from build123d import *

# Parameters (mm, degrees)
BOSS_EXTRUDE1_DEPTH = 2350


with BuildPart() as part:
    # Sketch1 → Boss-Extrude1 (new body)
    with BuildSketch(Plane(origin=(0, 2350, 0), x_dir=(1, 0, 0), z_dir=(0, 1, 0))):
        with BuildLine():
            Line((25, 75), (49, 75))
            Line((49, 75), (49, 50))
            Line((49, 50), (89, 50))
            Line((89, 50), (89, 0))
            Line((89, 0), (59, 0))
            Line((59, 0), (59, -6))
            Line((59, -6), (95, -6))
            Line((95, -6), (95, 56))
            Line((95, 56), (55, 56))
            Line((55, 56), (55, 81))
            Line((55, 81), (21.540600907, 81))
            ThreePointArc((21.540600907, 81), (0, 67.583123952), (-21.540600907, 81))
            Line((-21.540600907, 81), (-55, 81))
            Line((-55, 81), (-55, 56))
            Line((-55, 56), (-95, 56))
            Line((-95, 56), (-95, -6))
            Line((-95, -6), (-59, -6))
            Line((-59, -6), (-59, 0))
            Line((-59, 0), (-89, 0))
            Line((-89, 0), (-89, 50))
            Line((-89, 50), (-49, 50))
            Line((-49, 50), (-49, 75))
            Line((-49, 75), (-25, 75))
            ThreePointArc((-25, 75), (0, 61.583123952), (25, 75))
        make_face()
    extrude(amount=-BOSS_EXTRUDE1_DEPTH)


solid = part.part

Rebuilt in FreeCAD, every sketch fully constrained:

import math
import FreeCAD as App
import Part
import Sketcher

doc = App.newDocument("Part")
params = doc.addObject("Spreadsheet::Sheet", "Params")
for row, (alias, value) in enumerate([
    ("sketch1_radius", "24 mm"),
    ("sketch1_radius2", "30 mm"),
    ("sketch1_width", "24 mm"),
    ("sketch1_width2", "40 mm"),
    ("sketch1_width3", "30 mm"),
    ("pad1_length", "2350 mm"),
], start=1):
    params.set(f"A{row}", alias)
    params.set(f"B{row}", "=" + value)
    params.setAlias(f"B{row}", alias)

body = doc.addObject("PartDesign::Body", "Body")

# Sketch on XZ plane
sketch1 = body.newObject("Sketcher::SketchObject", "Sketch")
sketch1.AttachmentSupport = (doc.getObject("XZ_Plane"), [""])
sketch1.MapMode = "FlatFace"
sketch1.AttachmentOffset = App.Placement(App.Vector(0, 0, -2350), App.Rotation())
sketch1.addGeometry([
    Part.LineSegment(App.Vector(25, -75, 0), App.Vector(49, -75, 0)),  # 0
    Part.LineSegment(App.Vector(49, -75, 0), App.Vector(49, -50, 0)),  # 1
    Part.LineSegment(App.Vector(49, -50, 0), App.Vector(89, -50, 0)),  # 2
    Part.LineSegment(App.Vector(89, -50, 0), App.Vector(89, 0, 0)),  # 3
    Part.LineSegment(App.Vector(89, 0, 0), App.Vector(59, 0, 0)),  # 4
    Part.LineSegment(App.Vector(59, 0, 0), App.Vector(59, 6, 0)),  # 5
    Part.LineSegment(App.Vector(59, 6, 0), App.Vector(95, 6, 0)),  # 6
    Part.LineSegment(App.Vector(95, 6, 0), App.Vector(95, -56, 0)),  # 7
    Part.LineSegment(App.Vector(95, -56, 0), App.Vector(55, -56, 0)),  # 8
    Part.LineSegment(App.Vector(55, -56, 0), App.Vector(55, -81, 0)),  # 9
    Part.LineSegment(App.Vector(55, -81, 0), App.Vector(21.540601, -81, 0)),  # 10
    Part.ArcOfCircle(Part.Circle(App.Vector(0, -91.583124, 0), App.Vector(0, 0, 1), 24), math.radians(26.165372), math.radians(153.834628)),  # 11
    Part.LineSegment(App.Vector(-21.540601, -81, 0), App.Vector(-55, -81, 0)),  # 12
    Part.LineSegment(App.Vector(-55, -81, 0), App.Vector(-55, -56, 0)),  # 13
    Part.LineSegment(App.Vector(-55, -56, 0), App.Vector(-95, -56, 0)),  # 14
    Part.LineSegment(App.Vector(-95, -56, 0), App.Vector(-95, 6, 0)),  # 15
    Part.LineSegment(App.Vector(-95, 6, 0), App.Vector(-59, 6, 0)),  # 16
    Part.LineSegment(App.Vector(-59, 6, 0), App.Vector(-59, 0, 0)),  # 17
    Part.LineSegment(App.Vector(-59, 0, 0), App.Vector(-89, 0, 0)),  # 18
    Part.LineSegment(App.Vector(-89, 0, 0), App.Vector(-89, -50, 0)),  # 19
    Part.LineSegment(App.Vector(-89, -50, 0), App.Vector(-49, -50, 0)),  # 20
    Part.LineSegment(App.Vector(-49, -50, 0), App.Vector(-49, -75, 0)),  # 21
    Part.LineSegment(App.Vector(-49, -75, 0), App.Vector(-25, -75, 0)),  # 22
    Part.ArcOfCircle(Part.Circle(App.Vector(0, -91.583124, 0), App.Vector(0, 0, 1), 30), math.radians(33.55731), math.radians(146.44269)),  # 23
], False)
sketch1.addConstraint([
    Sketcher.Constraint("Coincident", 0, 2, 1, 1),
    Sketcher.Constraint("Coincident", 1, 2, 2, 1),
    Sketcher.Constraint("Coincident", 2, 2, 3, 1),
    Sketcher.Constraint("Coincident", 3, 2, 4, 1),
    Sketcher.Constraint("Coincident", 4, 2, 5, 1),
    Sketcher.Constraint("Coincident", 5, 2, 6, 1),
    Sketcher.Constraint("Coincident", 6, 2, 7, 1),
    Sketcher.Constraint("Coincident", 7, 2, 8, 1),
    Sketcher.Constraint("Coincident", 8, 2, 9, 1),
    Sketcher.Constraint("Coincident", 9, 2, 10, 1),
    Sketcher.Constraint("Coincident", 10, 2, 11, 1),
    Sketcher.Constraint("Coincident", 11, 2, 12, 1),
    Sketcher.Constraint("Coincident", 12, 2, 13, 1),
    Sketcher.Constraint("Coincident", 13, 2, 14, 1),
    Sketcher.Constraint("Coincident", 14, 2, 15, 1),
    Sketcher.Constraint("Coincident", 15, 2, 16, 1),
    Sketcher.Constraint("Coincident", 16, 2, 17, 1),
    Sketcher.Constraint("Coincident", 17, 2, 18, 1),
    Sketcher.Constraint("Coincident", 18, 2, 19, 1),
    Sketcher.Constraint("Coincident", 19, 2, 20, 1),
    Sketcher.Constraint("Coincident", 20, 2, 21, 1),
    Sketcher.Constraint("Coincident", 21, 2, 22, 1),
    Sketcher.Constraint("Coincident", 22, 2, 23, 2),
    Sketcher.Constraint("Coincident", 23, 1, 0, 1),
    Sketcher.Constraint("Horizontal", 0),
    Sketcher.Constraint("Vertical", 1),
    Sketcher.Constraint("Horizontal", 2),
    Sketcher.Constraint("Vertical", 3),
    Sketcher.Constraint("Horizontal", 4),
    Sketcher.Constraint("Vertical", 5),
    Sketcher.Constraint("Horizontal", 6),
    Sketcher.Constraint("Vertical", 7),
    Sketcher.Constraint("Horizontal", 8),
    Sketcher.Constraint("Vertical", 9),
    Sketcher.Constraint("Horizontal", 10),
    Sketcher.Constraint("Horizontal", 12),
    Sketcher.Constraint("Vertical", 13),
    Sketcher.Constraint("Horizontal", 14),
    Sketcher.Constraint("Vertical", 15),
    Sketcher.Constraint("Horizontal", 16),
    Sketcher.Constraint("Vertical", 17),
    Sketcher.Constraint("Horizontal", 18),
    Sketcher.Constraint("Vertical", 19),
    Sketcher.Constraint("Horizontal", 20),
    Sketcher.Constraint("Vertical", 21),
    Sketcher.Constraint("Horizontal", 22),
    Sketcher.Constraint("Coincident", 23, 3, 11, 3),
    Sketcher.Constraint("Symmetric", 4, 2, 17, 2, -1, 1),
    Sketcher.Constraint("Symmetric", 10, 2, 11, 2, -2),
    Sketcher.Constraint("Symmetric", 8, 2, 13, 2, -2),
    Sketcher.Constraint("Symmetric", 6, 2, 15, 2, -2),
    Sketcher.Constraint("Symmetric", 3, 2, 18, 2, -2),
    Sketcher.Constraint("Symmetric", 1, 2, 20, 2, -2),
    Sketcher.Constraint("Horizontal", 0, 2, 21, 2),
    Sketcher.Constraint("Equal", 2, 8),
    Sketcher.Constraint("Equal", 1, 9),
    Sketcher.Constraint("Radius", 11, 24.0),
    Sketcher.Constraint("Radius", 23, 30.0),
    Sketcher.Constraint("DistanceX", 0, 1, 0, 2, 24.0),
    Sketcher.Constraint("DistanceX", 2, 1, 2, 2, 40.0),
    Sketcher.Constraint("DistanceX", 4, 2, 4, 1, 30.0),
    Sketcher.Constraint("DistanceX", 6, 1, 6, 2, 36.0),
    Sketcher.Constraint("DistanceY", 1, 1, 1, 2, 25.0),
    Sketcher.Constraint("DistanceY", 3, 1, 3, 2, 50.0),
    Sketcher.Constraint("DistanceY", 5, 1, 5, 2, 6.0),
    Sketcher.Constraint("DistanceY", 7, 2, 7, 1, 62.0),
    Sketcher.Constraint("DistanceX", -1, 1, 0, 2, 49.0),
])
sketch1.setExpression("Constraints[56]", "Params.sketch1_radius")
sketch1.setExpression("Constraints[57]", "Params.sketch1_radius2")
sketch1.setExpression("Constraints[58]", "Params.sketch1_width")
sketch1.setExpression("Constraints[59]", "Params.sketch1_width2")
sketch1.setExpression("Constraints[60]", "Params.sketch1_width3")
pad1 = body.newObject("PartDesign::Pad", "Pad")
pad1.Profile = sketch1
pad1.setExpression("Length", "Params.pad1_length")

doc.recompute()
